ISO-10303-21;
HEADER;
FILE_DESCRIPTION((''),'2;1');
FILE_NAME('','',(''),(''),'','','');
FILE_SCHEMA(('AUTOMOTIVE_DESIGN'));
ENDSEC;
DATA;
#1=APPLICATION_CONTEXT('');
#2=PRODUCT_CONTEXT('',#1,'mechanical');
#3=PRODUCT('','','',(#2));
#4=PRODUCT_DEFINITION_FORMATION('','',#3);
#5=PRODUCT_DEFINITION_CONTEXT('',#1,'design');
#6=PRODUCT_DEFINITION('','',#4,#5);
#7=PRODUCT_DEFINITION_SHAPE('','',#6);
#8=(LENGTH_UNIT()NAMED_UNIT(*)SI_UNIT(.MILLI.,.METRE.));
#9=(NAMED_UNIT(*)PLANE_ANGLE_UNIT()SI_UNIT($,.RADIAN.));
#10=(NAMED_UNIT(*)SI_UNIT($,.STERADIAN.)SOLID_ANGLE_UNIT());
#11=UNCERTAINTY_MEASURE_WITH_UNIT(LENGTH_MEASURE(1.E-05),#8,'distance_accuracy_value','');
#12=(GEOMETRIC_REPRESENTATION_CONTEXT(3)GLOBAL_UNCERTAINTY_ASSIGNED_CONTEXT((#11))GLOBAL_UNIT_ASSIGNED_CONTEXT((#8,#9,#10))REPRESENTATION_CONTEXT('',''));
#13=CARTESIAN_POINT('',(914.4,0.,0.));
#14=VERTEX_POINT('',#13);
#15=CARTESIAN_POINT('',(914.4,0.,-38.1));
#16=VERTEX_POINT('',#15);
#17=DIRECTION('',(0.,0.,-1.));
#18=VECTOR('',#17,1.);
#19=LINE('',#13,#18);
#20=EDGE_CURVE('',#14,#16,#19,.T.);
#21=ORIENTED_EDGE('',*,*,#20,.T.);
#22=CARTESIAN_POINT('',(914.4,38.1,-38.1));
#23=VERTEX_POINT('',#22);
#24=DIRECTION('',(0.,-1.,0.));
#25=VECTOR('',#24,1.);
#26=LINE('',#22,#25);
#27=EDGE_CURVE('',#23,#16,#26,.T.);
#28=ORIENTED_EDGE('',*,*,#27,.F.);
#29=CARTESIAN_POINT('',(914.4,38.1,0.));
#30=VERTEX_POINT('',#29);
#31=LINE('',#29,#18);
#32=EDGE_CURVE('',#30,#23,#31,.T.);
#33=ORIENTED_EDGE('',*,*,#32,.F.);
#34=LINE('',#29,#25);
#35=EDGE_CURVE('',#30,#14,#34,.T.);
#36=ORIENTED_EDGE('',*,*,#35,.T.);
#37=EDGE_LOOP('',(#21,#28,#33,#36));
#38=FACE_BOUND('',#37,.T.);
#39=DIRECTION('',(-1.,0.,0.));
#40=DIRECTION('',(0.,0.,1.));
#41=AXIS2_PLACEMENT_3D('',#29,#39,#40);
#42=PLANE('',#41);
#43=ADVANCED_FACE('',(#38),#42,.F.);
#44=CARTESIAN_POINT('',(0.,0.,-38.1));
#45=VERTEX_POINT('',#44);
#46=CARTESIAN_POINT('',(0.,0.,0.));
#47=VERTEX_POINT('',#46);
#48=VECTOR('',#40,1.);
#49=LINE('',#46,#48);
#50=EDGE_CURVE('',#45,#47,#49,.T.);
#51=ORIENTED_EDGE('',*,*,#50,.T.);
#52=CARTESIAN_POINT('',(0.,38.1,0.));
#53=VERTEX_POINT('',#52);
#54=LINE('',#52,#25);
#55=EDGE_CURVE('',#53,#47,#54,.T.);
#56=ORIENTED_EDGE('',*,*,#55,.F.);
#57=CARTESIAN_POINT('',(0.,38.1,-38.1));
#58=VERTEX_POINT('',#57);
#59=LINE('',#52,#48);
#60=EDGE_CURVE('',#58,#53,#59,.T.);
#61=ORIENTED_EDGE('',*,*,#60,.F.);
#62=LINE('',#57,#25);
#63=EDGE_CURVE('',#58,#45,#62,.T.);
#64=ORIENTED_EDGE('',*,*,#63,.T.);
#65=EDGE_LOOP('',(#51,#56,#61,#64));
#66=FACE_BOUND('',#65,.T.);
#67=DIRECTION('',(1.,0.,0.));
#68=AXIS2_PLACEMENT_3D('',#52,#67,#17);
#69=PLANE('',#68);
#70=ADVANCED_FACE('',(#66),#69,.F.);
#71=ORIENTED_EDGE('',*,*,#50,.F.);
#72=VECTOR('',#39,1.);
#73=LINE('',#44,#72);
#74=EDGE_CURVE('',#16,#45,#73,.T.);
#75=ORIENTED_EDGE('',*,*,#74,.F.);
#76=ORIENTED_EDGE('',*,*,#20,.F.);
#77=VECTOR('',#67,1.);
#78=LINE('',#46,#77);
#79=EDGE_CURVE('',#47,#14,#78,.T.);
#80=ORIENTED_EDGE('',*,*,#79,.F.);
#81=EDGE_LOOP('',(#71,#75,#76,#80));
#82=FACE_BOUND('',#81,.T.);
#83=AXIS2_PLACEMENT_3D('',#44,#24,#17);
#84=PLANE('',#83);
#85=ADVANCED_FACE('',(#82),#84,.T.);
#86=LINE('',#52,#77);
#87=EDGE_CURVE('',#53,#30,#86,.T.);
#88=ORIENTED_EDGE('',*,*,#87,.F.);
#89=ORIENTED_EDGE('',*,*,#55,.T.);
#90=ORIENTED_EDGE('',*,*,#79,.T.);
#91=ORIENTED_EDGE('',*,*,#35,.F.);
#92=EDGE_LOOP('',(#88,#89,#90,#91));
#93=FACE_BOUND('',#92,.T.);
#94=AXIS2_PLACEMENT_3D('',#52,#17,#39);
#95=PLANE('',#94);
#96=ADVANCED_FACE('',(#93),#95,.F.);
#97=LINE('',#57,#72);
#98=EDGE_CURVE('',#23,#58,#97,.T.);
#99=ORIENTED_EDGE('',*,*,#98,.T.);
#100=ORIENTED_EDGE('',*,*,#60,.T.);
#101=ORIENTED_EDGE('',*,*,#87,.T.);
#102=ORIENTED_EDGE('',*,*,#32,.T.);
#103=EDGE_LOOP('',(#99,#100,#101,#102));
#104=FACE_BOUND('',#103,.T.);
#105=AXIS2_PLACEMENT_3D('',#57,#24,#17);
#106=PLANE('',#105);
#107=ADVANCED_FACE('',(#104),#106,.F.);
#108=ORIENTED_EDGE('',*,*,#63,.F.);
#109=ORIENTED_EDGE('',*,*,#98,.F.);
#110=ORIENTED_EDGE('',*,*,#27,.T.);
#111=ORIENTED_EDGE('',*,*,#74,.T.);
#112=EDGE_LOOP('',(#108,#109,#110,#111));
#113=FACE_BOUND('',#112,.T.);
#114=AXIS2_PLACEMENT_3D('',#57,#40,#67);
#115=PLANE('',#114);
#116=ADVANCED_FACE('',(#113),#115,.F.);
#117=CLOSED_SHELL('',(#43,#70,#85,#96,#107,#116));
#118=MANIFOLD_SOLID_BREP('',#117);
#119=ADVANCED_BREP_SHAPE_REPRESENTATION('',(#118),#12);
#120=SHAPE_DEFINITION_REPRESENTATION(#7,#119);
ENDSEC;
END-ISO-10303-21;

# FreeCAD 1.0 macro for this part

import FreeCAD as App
import Part
import Sketcher
Q = App.Units.Quantity

doc = App.newDocument("Part")
body = doc.addObject("PartDesign::Body", "Body")

# Sketch on XZ plane
sketch1 = body.newObject("Sketcher::SketchObject", "Sketch")
sketch1.AttachmentSupport = (doc.getObject("XZ_Plane"), [""])
sketch1.MapMode = "FlatFace"
sketch1.addGeometry([
    Part.LineSegment(App.Vector(0, -38.1, 0), App.Vector(0, 0, 0)),
    Part.LineSegment(App.Vector(0, 0, 0), App.Vector(914.4, 0, 0)),
    Part.LineSegment(App.Vector(914.4, 0, 0), App.Vector(914.4, -38.1, 0)),
    Part.LineSegment(App.Vector(914.4, -38.1, 0), App.Vector(0, -38.1, 0)),
], False)
sketch1.addConstraint([
    Sketcher.Constraint("Coincident", 0, 2, 1, 1),
    Sketcher.Constraint("Coincident", 1, 2, 2, 1),
    Sketcher.Constraint("Coincident", 2, 2, 3, 1),
    Sketcher.Constraint("Coincident", 3, 2, 0, 1),
    Sketcher.Constraint("Vertical", 0),
    Sketcher.Constraint("Horizontal", 1),
    Sketcher.Constraint("Vertical", 2),
    Sketcher.Constraint("Horizontal", 3),
    Sketcher.Constraint("Coincident", 0, 2, -1, 1),
    Sketcher.Constraint("DistanceX", 1, 1, 1, 2, Q("36 in")),
    Sketcher.Constraint("DistanceY", 0, 1, 0, 2, Q("1.5 in")),
])
pad1 = body.newObject("PartDesign::Pad", "Pad")
pad1.Profile = sketch1
pad1.Length = Q("1.5 in")
pad1.Reversed = True

doc.recompute()
